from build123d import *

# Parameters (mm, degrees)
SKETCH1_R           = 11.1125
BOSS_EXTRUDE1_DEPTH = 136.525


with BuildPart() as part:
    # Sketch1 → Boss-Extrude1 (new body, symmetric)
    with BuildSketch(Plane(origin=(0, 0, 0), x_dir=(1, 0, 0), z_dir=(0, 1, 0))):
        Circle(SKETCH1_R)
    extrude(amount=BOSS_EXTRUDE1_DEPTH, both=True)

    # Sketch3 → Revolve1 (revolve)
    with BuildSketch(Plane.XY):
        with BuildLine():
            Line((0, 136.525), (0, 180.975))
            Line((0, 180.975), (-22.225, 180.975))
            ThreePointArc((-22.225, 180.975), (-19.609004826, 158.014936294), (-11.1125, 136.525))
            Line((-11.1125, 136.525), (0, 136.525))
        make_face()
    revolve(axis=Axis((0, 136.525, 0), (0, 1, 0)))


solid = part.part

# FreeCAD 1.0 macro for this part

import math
import FreeCAD as App
import Part
import Sketcher

V = App.Vector
Q = App.Units.Quantity

doc = App.newDocument("Part")
body = doc.addObject("PartDesign::Body", "Body")

sketch1 = body.newObject("Sketcher::SketchObject", "Sketch")
sketch1.AttachmentSupport = (doc.getObject("XZ_Plane"), [""])
sketch1.MapMode = "FlatFace"
sketch1.addGeometry(Part.Circle(V(0, 0, 0), V(0, 0, 1), 11.1125), False)
sketch1.addConstraint(Sketcher.Constraint("Coincident", 0, 3, -1, 1))
sketch1.addConstraint(Sketcher.Constraint("Diameter", 0, Q("0.875 in")))
pad1 = body.newObject("PartDesign::Pad", "Pad")
pad1.Profile = sketch1
pad1.Length = Q("10.75 in")
pad1.Midplane = True

sketch2 = body.newObject("Sketcher::SketchObject", "Sketch001")
sketch2.AttachmentSupport = (doc.getObject("XY_Plane"), [""])
sketch2.MapMode = "FlatFace"
sketch2.addGeometry(Part.LineSegment(V(0, 136.525, 0), V(0, 180.975, 0)), False)
sketch2.addGeometry(Part.LineSegment(V(0, 180.975, 0), V(-22.225, 180.975, 0)), False)
sketch2.addGeometry(Part.ArcOfCircle(Part.Circle(V(65.85905, 179.38195, 0), V(0, 0, 1), 88.098455), math.radians(178.963886), math.radians(209.108601)), False)
sketch2.addGeometry(Part.LineSegment(V(-11.1125, 136.525, 0), V(0, 136.525, 0)), False)
sketch2.addConstraint(Sketcher.Constraint("Coincident", 0, 2, 1, 1))
sketch2.addConstraint(Sketcher.Constraint("Coincident", 1, 2, 2, 1))
sketch2.addConstraint(Sketcher.Constraint("Coincident", 2, 2, 3, 1))
sketch2.addConstraint(Sketcher.Constraint("Coincident", 3, 2, 0, 1))
sketch2.addConstraint(Sketcher.Constraint("Vertical", 0))
sketch2.addConstraint(Sketcher.Constraint("Horizontal", 1))
sketch2.addConstraint(Sketcher.Constraint("Horizontal", 3))
sketch2.addConstraint(Sketcher.Constraint("PointOnObject", 0, 2, -2))
sketch2.addConstraint(Sketcher.Constraint("DistanceY", 0, 1, 0, 2, Q("1.75 in")))
sketch2.addConstraint(Sketcher.Constraint("DistanceX", 1, 2, 1, 1, Q("0.875 in")))
sketch2.addConstraint(Sketcher.Constraint("DistanceX", 3, 1, 3, 2, Q("0.4375 in")))
sketch2.addConstraint(Sketcher.Constraint("DistanceY", -1, 1, 0, 2, Q("7.125 in")))
sketch2.addConstraint(Sketcher.Constraint("Radius", 2, Q("88.098455 mm")))
revolution = body.newObject("PartDesign::Revolution", "Revolution")
revolution.Profile = sketch2
revolution.ReferenceAxis = (sketch2, ["V_Axis"])
revolution.Angle = 360

doc.recompute()
